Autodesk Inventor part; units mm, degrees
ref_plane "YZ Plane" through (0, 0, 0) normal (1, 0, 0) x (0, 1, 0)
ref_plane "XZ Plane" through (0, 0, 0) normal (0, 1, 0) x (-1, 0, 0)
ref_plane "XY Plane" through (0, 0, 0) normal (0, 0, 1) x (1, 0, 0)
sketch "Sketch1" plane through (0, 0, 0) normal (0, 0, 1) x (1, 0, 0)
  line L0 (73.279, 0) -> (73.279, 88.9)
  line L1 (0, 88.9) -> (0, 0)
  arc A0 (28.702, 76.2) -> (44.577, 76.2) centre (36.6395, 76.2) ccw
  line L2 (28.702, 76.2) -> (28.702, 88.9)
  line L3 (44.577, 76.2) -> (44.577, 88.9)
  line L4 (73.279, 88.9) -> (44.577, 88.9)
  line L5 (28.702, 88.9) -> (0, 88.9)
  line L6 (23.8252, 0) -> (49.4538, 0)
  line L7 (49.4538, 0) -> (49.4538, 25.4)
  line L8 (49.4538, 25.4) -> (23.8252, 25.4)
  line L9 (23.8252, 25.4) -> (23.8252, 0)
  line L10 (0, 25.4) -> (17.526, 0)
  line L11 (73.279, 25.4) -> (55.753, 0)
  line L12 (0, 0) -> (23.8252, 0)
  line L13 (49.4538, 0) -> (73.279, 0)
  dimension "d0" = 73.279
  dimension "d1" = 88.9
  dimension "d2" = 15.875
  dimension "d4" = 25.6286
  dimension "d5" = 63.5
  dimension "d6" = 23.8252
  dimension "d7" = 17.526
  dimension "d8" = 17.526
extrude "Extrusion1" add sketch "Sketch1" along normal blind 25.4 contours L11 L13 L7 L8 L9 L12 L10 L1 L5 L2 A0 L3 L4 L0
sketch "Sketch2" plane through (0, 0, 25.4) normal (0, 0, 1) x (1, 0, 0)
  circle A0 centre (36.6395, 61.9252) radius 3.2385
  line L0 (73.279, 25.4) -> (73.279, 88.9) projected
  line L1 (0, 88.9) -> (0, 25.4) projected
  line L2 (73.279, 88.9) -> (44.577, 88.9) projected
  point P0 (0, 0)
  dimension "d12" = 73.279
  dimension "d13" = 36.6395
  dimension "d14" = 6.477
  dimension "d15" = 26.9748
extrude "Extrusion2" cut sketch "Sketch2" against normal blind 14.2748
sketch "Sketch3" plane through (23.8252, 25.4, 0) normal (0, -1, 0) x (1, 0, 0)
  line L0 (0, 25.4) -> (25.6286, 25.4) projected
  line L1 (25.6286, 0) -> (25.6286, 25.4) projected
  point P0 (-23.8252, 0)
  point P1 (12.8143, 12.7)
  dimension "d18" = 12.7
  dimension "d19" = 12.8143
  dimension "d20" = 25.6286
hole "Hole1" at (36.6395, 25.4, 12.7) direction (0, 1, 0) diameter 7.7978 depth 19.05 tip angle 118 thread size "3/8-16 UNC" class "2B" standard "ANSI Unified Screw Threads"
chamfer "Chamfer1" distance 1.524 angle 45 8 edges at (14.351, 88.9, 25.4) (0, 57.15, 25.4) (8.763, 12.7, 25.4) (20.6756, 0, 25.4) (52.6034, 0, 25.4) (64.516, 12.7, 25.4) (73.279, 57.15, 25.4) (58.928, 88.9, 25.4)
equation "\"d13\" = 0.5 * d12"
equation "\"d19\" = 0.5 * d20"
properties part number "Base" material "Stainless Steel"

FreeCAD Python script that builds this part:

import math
import FreeCAD as App
import Part
import Sketcher
from FreeCAD import Vector
Q = App.Units.Quantity


def edges_at(feature, points):
    """Names of the edges that pass closest to the given points."""
    edges = feature.Shape.Edges
    near = lambda p: min(range(len(edges)), key=lambda i: edges[i].distToShape(Part.Vertex(*p))[0])
    return sorted({f"Edge{near(p) + 1}" for p in points})

doc = App.newDocument("Part")
body = doc.addObject("PartDesign::Body", "Body")

sketch1 = doc.addObject("Sketcher::SketchObject", "Sketch")
body.addObject(sketch1)
sketch1.AttachmentSupport = (doc.XY_Plane, [""])
sketch1.MapMode = "FlatFace"
sketch1.addGeometry([
    Part.LineSegment(Vector(56, 0, 0), Vector(73, 25, 0)),
    Part.LineSegment(Vector(73, 25, 0), Vector(73, 89, 0)),
    Part.LineSegment(Vector(73, 89, 0), Vector(45, 89, 0)),
    Part.LineSegment(Vector(45, 89, 0), Vector(45, 76, 0)),
    Part.ArcOfCircle(Part.Circle(Vector(37, 76, 0), Vector(0, 0, 1), 8), math.radians(180), math.radians(360)),
    Part.LineSegment(Vector(29, 76, 0), Vector(29, 89, 0)),
    Part.LineSegment(Vector(29, 89, 0), Vector(0, 89, 0)),
    Part.LineSegment(Vector(0, 89, 0), Vector(0, 25, 0)),
    Part.LineSegment(Vector(0, 25, 0), Vector(18, 0, 0)),
    Part.LineSegment(Vector(18, 0, 0), Vector(24, 0, 0)),
    Part.LineSegment(Vector(24, 0, 0), Vector(24, 25, 0)),
    Part.LineSegment(Vector(24, 25, 0), Vector(49, 25, 0)),
    Part.LineSegment(Vector(49, 25, 0), Vector(49, 0, 0)),
    Part.LineSegment(Vector(49, 0, 0), Vector(56, 0, 0)),
], False)
sketch1.addConstraint([
    Sketcher.Constraint("Coincident", 0, 2, 1, 1),
    Sketcher.Constraint("Coincident", 1, 2, 2, 1),
    Sketcher.Constraint("Coincident", 2, 2, 3, 1),
    Sketcher.Constraint("Tangent", 3, 2, 4, 2),
    Sketcher.Constraint("Tangent", 4, 1, 5, 1),
    Sketcher.Constraint("Coincident", 5, 2, 6, 1),
    Sketcher.Constraint("Coincident", 6, 2, 7, 1),
    Sketcher.Constraint("Coincident", 7, 2, 8, 1),
    Sketcher.Constraint("Coincident", 8, 2, 9, 1),
    Sketcher.Constraint("Coincident", 9, 2, 10, 1),
    Sketcher.Constraint("Coincident", 10, 2, 11, 1),
    Sketcher.Constraint("Coincident", 11, 2, 12, 1),
    Sketcher.Constraint("Coincident", 12, 2, 13, 1),
    Sketcher.Constraint("Coincident", 13, 2, 0, 1),
    Sketcher.Constraint("Vertical", 1),
    Sketcher.Constraint("Horizontal", 2),
    Sketcher.Constraint("Vertical", 3),
    Sketcher.Constraint("Vertical", 5),
    Sketcher.Constraint("Horizontal", 6),
    Sketcher.Constraint("Vertical", 7),
    Sketcher.Constraint("Horizontal", 9),
    Sketcher.Constraint("Vertical", 10),
    Sketcher.Constraint("Horizontal", 11),
    Sketcher.Constraint("Vertical", 12),
    Sketcher.Constraint("Horizontal", 13),
    Sketcher.Constraint("PointOnObject", 6, 2, -2),
    Sketcher.Constraint("PointOnObject", 8, 2, -1),
    Sketcher.Constraint("PointOnObject", 12, 2, -1),
    Sketcher.Constraint("Horizontal", 2, 2, 5, 2),
    Sketcher.Constraint("Horizontal", 0, 2, 7, 2),
    Sketcher.Constraint("Horizontal", 7, 2, 10, 2),
    Sketcher.Constraint("Equal", 2, 6),
    Sketcher.Constraint("Equal", 9, 13),
    Sketcher.Constraint("Equal", 0, 8),
    Sketcher.Constraint("DistanceY", 1, 1, 1, 2, Q("2.5 in")),
    Sketcher.Constraint("Radius", 4, Q("0.3125 in")),
    Sketcher.Constraint("DistanceY", -1, 1, 1, 2, Q("3.5 in")),
    Sketcher.Constraint("DistanceX", 11, 1, 11, 2, Q("1.009 in")),
    Sketcher.Constraint("DistanceX", -1, 1, 8, 2, Q("0.69 in")),
    Sketcher.Constraint("DistanceY", 3, 2, 3, 1, Q("0.5 in")),
    Sketcher.Constraint("DistanceX", -1, 1, 0, 2, Q("2.885 in")),
])
pad1 = doc.addObject("PartDesign::Pad", "Pad")
body.addObject(pad1)
pad1.Profile = sketch1
pad1.Length = Q("1 in")

sketch2 = doc.addObject("Sketcher::SketchObject", "Sketch001")
body.addObject(sketch2)
sketch2.AttachmentSupport = (doc.XY_Plane, [""])
sketch2.MapMode = "FlatFace"
sketch2.AttachmentOffset = App.Placement(Vector(0, 0, 1 * 25.4), App.Rotation())
sketch2.addGeometry(Part.Circle(Vector(36.6, 61.9, 0), Vector(0, 0, 1), 3.2), False)
sketch2.addConstraint([
    Sketcher.Constraint("Diameter", 0, Q("0.255 in")),
    Sketcher.Constraint("DistanceX", -1, 1, 0, 3, Q("1.4425 in")),
    Sketcher.Constraint("DistanceY", -1, 1, 0, 3, Q("2.438 in")),
])
pocket1 = doc.addObject("PartDesign::Pocket", "Pocket")
body.addObject(pocket1)
pocket1.Profile = sketch2
pocket1.Length = Q("0.562 in")

sketch3 = doc.addObject("Sketcher::SketchObject", "Sketch002")
body.addObject(sketch3)
sketch3.AttachmentSupport = (doc.XZ_Plane, [""])
sketch3.MapMode = "FlatFace"
sketch3.AttachmentOffset = App.Placement(Vector(0, 0, -1 * 25.4), App.Rotation())
sketch3.addGeometry(Part.Circle(Vector(36.6, 12.7, 0), Vector(0, 0, 1), 3.9), False)
sketch3.addConstraint([
    Sketcher.Constraint("Diameter", 0, Q("0.307 in")),
    Sketcher.Constraint("DistanceY", -1, 1, 0, 3, Q("0.5 in")),
    Sketcher.Constraint("DistanceX", -1, 1, 0, 3, Q("1.4425 in")),
])
doc.recompute()
hole = doc.addObject("PartDesign::Hole", "Hole")
body.addObject(hole)
hole.Profile = sketch3
hole.ThreadType = "None"
hole.Diameter = Q("0.307 in")
hole.DepthType = "Dimension"
hole.Depth = Q("0.75 in")
hole.DrillPoint = "Angled"
hole.DrillPointAngle = 118
doc.recompute()

chamfer = doc.addObject("PartDesign::Chamfer", "Chamfer")
body.addObject(chamfer)
chamfer.Base = (hole, edges_at(hole, [
    (14.351, 88.9, 25.4),
    (0, 57.15, 25.4),
    (8.763, 12.7, 25.4),
    (20.676, 0, 25.4),
    (52.603, 0, 25.4),
    (64.516, 12.7, 25.4),
    (73.279, 57.15, 25.4),
    (58.928, 88.9, 25.4),
]))
chamfer.Size = Q("0.06 in")

doc.recompute()
